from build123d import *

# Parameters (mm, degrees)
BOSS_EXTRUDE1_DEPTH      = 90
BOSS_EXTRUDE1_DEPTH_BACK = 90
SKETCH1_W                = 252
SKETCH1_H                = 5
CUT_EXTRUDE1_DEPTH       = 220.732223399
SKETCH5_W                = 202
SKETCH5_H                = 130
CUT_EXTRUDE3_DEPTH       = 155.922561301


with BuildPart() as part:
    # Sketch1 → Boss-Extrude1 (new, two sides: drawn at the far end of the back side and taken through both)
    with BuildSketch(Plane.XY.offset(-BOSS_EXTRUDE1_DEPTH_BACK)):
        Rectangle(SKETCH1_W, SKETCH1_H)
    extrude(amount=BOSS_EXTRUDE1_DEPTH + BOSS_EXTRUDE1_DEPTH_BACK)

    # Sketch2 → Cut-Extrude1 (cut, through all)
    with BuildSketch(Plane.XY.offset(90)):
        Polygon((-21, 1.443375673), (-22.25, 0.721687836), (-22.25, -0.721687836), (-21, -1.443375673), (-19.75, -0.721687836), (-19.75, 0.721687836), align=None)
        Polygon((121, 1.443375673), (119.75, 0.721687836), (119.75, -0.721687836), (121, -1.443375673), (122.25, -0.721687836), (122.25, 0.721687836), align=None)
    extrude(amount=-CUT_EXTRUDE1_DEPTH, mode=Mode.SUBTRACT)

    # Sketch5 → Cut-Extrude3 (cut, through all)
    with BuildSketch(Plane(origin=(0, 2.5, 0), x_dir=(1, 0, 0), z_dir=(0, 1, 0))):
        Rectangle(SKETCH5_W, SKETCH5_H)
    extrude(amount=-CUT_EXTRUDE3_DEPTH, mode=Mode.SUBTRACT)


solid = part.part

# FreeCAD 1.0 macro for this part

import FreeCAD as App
import Part
import Sketcher
Q = App.Units.Quantity

doc = App.newDocument("Part")
body = doc.addObject("PartDesign::Body", "Body")

sketch1 = body.newObject("Sketcher::SketchObject", "Sketch")
sketch1.AttachmentSupport = (doc.getObject("XY_Plane"), [""])
sketch1.MapMode = "FlatFace"
sketch1.addGeometry(Part.LineSegment(App.Vector(-126, 2, 0), App.Vector(-126, -2, 0)), False)
sketch1.addGeometry(Part.LineSegment(App.Vector(-126, -2, 0), App.Vector(126, -2, 0)), False)
sketch1.addGeometry(Part.LineSegment(App.Vector(126, -2, 0), App.Vector(126, 2, 0)), False)
sketch1.addGeometry(Part.LineSegment(App.Vector(126, 2, 0), App.Vector(-126, 2, 0)), False)
sketch1.addConstraint(Sketcher.Constraint("Coincident", 0, 2, 1, 1))
sketch1.addConstraint(Sketcher.Constraint("Coincident", 1, 2, 2, 1))
sketch1.addConstraint(Sketcher.Constraint("Coincident", 2, 2, 3, 1))
sketch1.addConstraint(Sketcher.Constraint("Coincident", 3, 2, 0, 1))
sketch1.addConstraint(Sketcher.Constraint("Vertical", 0))
sketch1.addConstraint(Sketcher.Constraint("Horizontal", 1))
sketch1.addConstraint(Sketcher.Constraint("Vertical", 2))
sketch1.addConstraint(Sketcher.Constraint("Horizontal", 3))
sketch1.addConstraint(Sketcher.Constraint("Symmetric", 0, 2, 2, 2, -1, 1))
sketch1.addConstraint(Sketcher.Constraint("DistanceX", 1, 1, 1, 2, Q("252 mm")))
sketch1.addConstraint(Sketcher.Constraint("DistanceY", 0, 2, 0, 1, Q("5 mm")))
pad1 = body.newObject("PartDesign::Pad", "Pad")
pad1.Profile = sketch1
pad1.Type = "TwoLengths"
pad1.Length = 90
pad1.Length2 = 90

sketch2 = body.newObject("Sketcher::SketchObject", "Sketch001")
sketch2.AttachmentSupport = (doc.getObject("XY_Plane"), [""])
sketch2.MapMode = "FlatFace"
sketch2.AttachmentOffset = App.Placement(App.Vector(0, 0, 90), App.Rotation())
sketch2.addGeometry(Part.LineSegment(App.Vector(-21, 1.4, 0), App.Vector(-22.2, 0.7, 0)), False)
sketch2.addGeometry(Part.LineSegment(App.Vector(-22.2, 0.7, 0), App.Vector(-22.2, -0.7, 0)), False)
sketch2.addGeometry(Part.LineSegment(App.Vector(-22.2, -0.7, 0), App.Vector(-21, -1.4, 0)), False)
sketch2.addGeometry(Part.LineSegment(App.Vector(-21, -1.4, 0), App.Vector(-19.8, -0.7, 0)), False)
sketch2.addGeometry(Part.LineSegment(App.Vector(-19.8, -0.7, 0), App.Vector(-19.8, 0.7, 0)), False)
sketch2.addGeometry(Part.LineSegment(App.Vector(-19.8, 0.7, 0), App.Vector(-21, 1.4, 0)), False)
sketch2.addGeometry(Part.LineSegment(App.Vector(121, 1.4, 0), App.Vector(119.8, 0.7, 0)), False)
sketch2.addGeometry(Part.LineSegment(App.Vector(119.8, 0.7, 0), App.Vector(119.8, -0.7, 0)), False)
sketch2.addGeometry(Part.LineSegment(App.Vector(119.8, -0.7, 0), App.Vector(121, -1.4, 0)), False)
sketch2.addGeometry(Part.LineSegment(App.Vector(121, -1.4, 0), App.Vector(122.2, -0.7, 0)), False)
sketch2.addGeometry(Part.LineSegment(App.Vector(122.2, -0.7, 0), App.Vector(122.2, 0.7, 0)), False)
sketch2.addGeometry(Part.LineSegment(App.Vector(122.2, 0.7, 0), App.Vector(121, 1.4, 0)), False)
sketch2.addConstraint(Sketcher.Constraint("Coincident", 0, 2, 1, 1))
sketch2.addConstraint(Sketcher.Constraint("Coincident", 1, 2, 2, 1))
sketch2.addConstraint(Sketcher.Constraint("Coincident", 2, 2, 3, 1))
sketch2.addConstraint(Sketcher.Constraint("Coincident", 3, 2, 4, 1))
sketch2.addConstraint(Sketcher.Constraint("Coincident", 4, 2, 5, 1))
sketch2.addConstraint(Sketcher.Constraint("Coincident", 5, 2, 0, 1))
sketch2.addConstraint(Sketcher.Constraint("Coincident", 6, 2, 7, 1))
sketch2.addConstraint(Sketcher.Constraint("Coincident", 7, 2, 8, 1))
sketch2.addConstraint(Sketcher.Constraint("Coincident", 8, 2, 9, 1))
sketch2.addConstraint(Sketcher.Constraint("Coincident", 9, 2, 10, 1))
sketch2.addConstraint(Sketcher.Constraint("Coincident", 10, 2, 11, 1))
sketch2.addConstraint(Sketcher.Constraint("Coincident", 11, 2, 6, 1))
sketch2.addConstraint(Sketcher.Constraint("Vertical", 1))
sketch2.addConstraint(Sketcher.Constraint("Vertical", 4))
sketch2.addConstraint(Sketcher.Constraint("Vertical", 7))
sketch2.addConstraint(Sketcher.Constraint("Vertical", 10))
sketch2.addConstraint(Sketcher.Constraint("Symmetric", 2, 2, 5, 2, -1))
sketch2.addConstraint(Sketcher.Constraint("Symmetric", 8, 2, 11, 2, -1))
sketch2.addConstraint(Sketcher.Constraint("Parallel", 0, 3))
sketch2.addConstraint(Sketcher.Constraint("Parallel", 2, 5))
sketch2.addConstraint(Sketcher.Constraint("Parallel", 3, 6))
sketch2.addConstraint(Sketcher.Constraint("Parallel", 5, 8))
sketch2.addConstraint(Sketcher.Constraint("Parallel", 6, 9))
sketch2.addConstraint(Sketcher.Constraint("Parallel", 8, 11))
sketch2.addConstraint(Sketcher.Constraint("Horizontal", 1, 2, 3, 2))
sketch2.addConstraint(Sketcher.Constraint("Horizontal", 0, 2, 4, 2))
sketch2.addConstraint(Sketcher.Constraint("Horizontal", 4, 2, 6, 2))
sketch2.addConstraint(Sketcher.Constraint("Horizontal", 2, 2, 8, 2))
sketch2.addConstraint(Sketcher.Constraint("Horizontal", 7, 2, 9, 2))
sketch2.addConstraint(Sketcher.Constraint("Angle", 0, Q("-150 deg")))
sketch2.addConstraint(Sketcher.Constraint("DistanceX", 2, 2, -1, 1, Q("21 mm")))
sketch2.addConstraint(Sketcher.Constraint("DistanceX", -1, 1, 8, 2, Q("121 mm")))
sketch2.addConstraint(Sketcher.Constraint("DistanceX", 1, 2, 3, 2, Q("2.5 mm")))
sketch2.addConstraint(Sketcher.Constraint("DistanceY", 1, 2, 1, 1, Q("1.443376 mm")))
pocket1 = body.newObject("PartDesign::Pocket", "Pocket")
pocket1.Profile = sketch2
pocket1.Type = "ThroughAll"

sketch3 = body.newObject("Sketcher::SketchObject", "Sketch002")
sketch3.AttachmentSupport = (doc.getObject("XZ_Plane"), [""])
sketch3.MapMode = "FlatFace"
sketch3.AttachmentOffset = App.Placement(App.Vector(0, 0, -2.5), App.Rotation())
sketch3.addGeometry(Part.LineSegment(App.Vector(-101, -65, 0), App.Vector(-101, 65, 0)), False)
sketch3.addGeometry(Part.LineSegment(App.Vector(-101, 65, 0), App.Vector(101, 65, 0)), False)
sketch3.addGeometry(Part.LineSegment(App.Vector(101, 65, 0), App.Vector(101, -65, 0)), False)
sketch3.addGeometry(Part.LineSegment(App.Vector(101, -65, 0), App.Vector(-101, -65, 0)), False)
sketch3.addConstraint(Sketcher.Constraint("Coincident", 0, 2, 1, 1))
sketch3.addConstraint(Sketcher.Constraint("Coincident", 1, 2, 2, 1))
sketch3.addConstraint(Sketcher.Constraint("Coincident", 2, 2, 3, 1))
sketch3.addConstraint(Sketcher.Constraint("Coincident", 3, 2, 0, 1))
sketch3.addConstraint(Sketcher.Constraint("Vertical", 0))
sketch3.addConstraint(Sketcher.Constraint("Horizontal", 1))
sketch3.addConstraint(Sketcher.Constraint("Vertical", 2))
sketch3.addConstraint(Sketcher.Constraint("Horizontal", 3))
sketch3.addConstraint(Sketcher.Constraint("Symmetric", 0, 2, 2, 2, -1, 1))
sketch3.addConstraint(Sketcher.Constraint("DistanceX", 1, 1, 1, 2, Q("202 mm")))
sketch3.addConstraint(Sketcher.Constraint("DistanceY", 0, 1, 0, 2, Q("130 mm")))
pocket2 = body.newObject("PartDesign::Pocket", "Pocket001")
pocket2.Profile = sketch3
pocket2.Type = "ThroughAll"
pocket2.Reversed = True

doc.recompute()
